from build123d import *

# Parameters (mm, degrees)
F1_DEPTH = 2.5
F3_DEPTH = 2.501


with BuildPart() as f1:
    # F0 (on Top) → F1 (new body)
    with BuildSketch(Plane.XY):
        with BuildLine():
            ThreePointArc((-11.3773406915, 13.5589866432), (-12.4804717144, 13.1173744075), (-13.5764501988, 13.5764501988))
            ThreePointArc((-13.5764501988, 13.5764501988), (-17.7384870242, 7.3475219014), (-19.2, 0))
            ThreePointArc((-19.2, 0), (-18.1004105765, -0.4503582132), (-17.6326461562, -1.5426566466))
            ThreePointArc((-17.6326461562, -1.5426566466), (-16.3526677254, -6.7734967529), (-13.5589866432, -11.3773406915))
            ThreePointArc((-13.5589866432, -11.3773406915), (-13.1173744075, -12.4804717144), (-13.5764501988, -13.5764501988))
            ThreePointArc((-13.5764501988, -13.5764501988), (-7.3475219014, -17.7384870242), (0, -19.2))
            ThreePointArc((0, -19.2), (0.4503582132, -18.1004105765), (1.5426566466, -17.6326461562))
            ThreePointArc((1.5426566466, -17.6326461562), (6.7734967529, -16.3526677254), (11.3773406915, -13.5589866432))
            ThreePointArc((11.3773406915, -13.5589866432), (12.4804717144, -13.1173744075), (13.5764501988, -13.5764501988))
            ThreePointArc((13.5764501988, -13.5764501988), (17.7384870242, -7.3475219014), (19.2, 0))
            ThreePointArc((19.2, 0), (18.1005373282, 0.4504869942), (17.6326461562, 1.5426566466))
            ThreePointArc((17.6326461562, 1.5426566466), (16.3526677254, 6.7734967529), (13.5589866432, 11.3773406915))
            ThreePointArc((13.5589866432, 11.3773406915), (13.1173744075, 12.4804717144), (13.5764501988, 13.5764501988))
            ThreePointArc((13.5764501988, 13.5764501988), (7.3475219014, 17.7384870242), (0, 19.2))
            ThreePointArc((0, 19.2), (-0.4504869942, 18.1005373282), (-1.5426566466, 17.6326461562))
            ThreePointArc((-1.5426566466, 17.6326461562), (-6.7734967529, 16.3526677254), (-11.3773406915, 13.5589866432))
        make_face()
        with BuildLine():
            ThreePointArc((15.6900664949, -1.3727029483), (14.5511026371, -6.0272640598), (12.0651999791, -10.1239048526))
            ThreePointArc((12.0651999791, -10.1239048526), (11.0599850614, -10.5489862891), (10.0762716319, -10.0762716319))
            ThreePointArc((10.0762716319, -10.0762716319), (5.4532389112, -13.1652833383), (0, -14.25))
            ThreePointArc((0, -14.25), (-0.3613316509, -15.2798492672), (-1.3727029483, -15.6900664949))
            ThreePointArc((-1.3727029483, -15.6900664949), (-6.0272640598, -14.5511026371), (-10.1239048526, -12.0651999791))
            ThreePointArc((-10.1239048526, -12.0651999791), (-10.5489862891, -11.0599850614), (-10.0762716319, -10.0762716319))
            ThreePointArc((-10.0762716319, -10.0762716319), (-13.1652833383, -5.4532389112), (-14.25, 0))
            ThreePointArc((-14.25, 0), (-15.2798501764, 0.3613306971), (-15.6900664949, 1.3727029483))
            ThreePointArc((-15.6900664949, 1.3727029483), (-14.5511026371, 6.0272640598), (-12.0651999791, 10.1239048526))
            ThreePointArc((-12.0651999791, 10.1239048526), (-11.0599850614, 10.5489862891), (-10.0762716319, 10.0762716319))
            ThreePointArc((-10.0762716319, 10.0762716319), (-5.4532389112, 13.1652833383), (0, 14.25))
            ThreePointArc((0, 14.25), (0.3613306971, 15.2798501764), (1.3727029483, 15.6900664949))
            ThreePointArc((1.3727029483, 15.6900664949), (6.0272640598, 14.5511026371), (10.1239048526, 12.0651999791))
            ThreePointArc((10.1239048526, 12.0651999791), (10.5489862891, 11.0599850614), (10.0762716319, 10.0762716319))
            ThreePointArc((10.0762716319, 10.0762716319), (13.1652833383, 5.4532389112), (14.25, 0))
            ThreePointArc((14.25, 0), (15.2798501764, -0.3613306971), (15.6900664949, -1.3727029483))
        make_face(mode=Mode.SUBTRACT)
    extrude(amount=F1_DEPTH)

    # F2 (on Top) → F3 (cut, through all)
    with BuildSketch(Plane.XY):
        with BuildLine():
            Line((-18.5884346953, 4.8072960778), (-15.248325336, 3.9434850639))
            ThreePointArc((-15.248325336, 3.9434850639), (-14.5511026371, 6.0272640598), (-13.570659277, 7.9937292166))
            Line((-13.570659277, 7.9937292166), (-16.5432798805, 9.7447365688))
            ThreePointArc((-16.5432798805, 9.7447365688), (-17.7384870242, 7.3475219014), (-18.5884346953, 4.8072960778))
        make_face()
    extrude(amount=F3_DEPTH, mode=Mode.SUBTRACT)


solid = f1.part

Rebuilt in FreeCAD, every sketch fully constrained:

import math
import FreeCAD as App
import Part
import Sketcher
from FreeCAD import Vector
Q = App.Units.Quantity

doc = App.newDocument("Part")
params = doc.addObject("Spreadsheet::Sheet", "Params")
for row, (alias, value) in enumerate([
    ("sketch1_radius", "19.2 mm"),
    ("sketch1_radius2", "17.7 mm"),
    ("sketch1_radius3", "15.75 mm"),
    ("sketch1_radius4", "14.25 mm"),
    ("pad1_length", "2.5 mm"),
    ("sketch2_radius", "19.2 mm"),
    ("sketch2_radius2", "15.75 mm"),
], start=1):
    params.set(f"A{row}", alias)
    params.set(f"B{row}", "=" + value)
    params.setAlias(f"B{row}", alias)

body = doc.addObject("PartDesign::Body", "Body")

# Sketch on XY plane
sketch1 = body.newObject("Sketcher::SketchObject", "Sketch")
sketch1.AttachmentSupport = (doc.getObject("XY_Plane"), [""])
sketch1.MapMode = "FlatFace"
sketch1.addGeometry([
    Part.ArcOfCircle(Part.Circle(Vector(-12.5, 14.7, 0), Vector(0, 0, 1), 1.6), math.radians(-135), math.radians(-46)),  # 0
    Part.ArcOfCircle(Part.Circle(Vector(0, 0, 0), Vector(0, 0, 1), 19.2), math.radians(135), math.radians(180)),  # 1
    Part.ArcOfCircle(Part.Circle(Vector(-19.2, -1.6, 0), Vector(0, 0, 1), 1.6), math.radians(1), math.radians(90)),  # 2
    Part.ArcOfCircle(Part.Circle(Vector(0, 0, 0), Vector(0, 0, 1), 17.7), math.radians(-175), math.radians(-140)),  # 3
    Part.ArcOfCircle(Part.Circle(Vector(-14.7, -12.5, 0), Vector(0, 0, 1), 1.6), math.radians(-45), math.radians(44)),  # 4
    Part.ArcOfCircle(Part.Circle(Vector(0, 0, 0), Vector(0, 0, 1), 19.2), math.radians(-135), math.radians(-90)),  # 5
    Part.ArcOfCircle(Part.Circle(Vector(1.6, -19.2, 0), Vector(0, 0, 1), 1.6), math.radians(91), math.radians(180)),  # 6
    Part.ArcOfCircle(Part.Circle(Vector(0, 0, 0), Vector(0, 0, 1), 17.7), math.radians(-85), math.radians(-50)),  # 7
    Part.ArcOfCircle(Part.Circle(Vector(12.5, -14.7, 0), Vector(0, 0, 1), 1.6), math.radians(45), math.radians(134)),  # 8
    Part.ArcOfCircle(Part.Circle(Vector(0, 0, 0), Vector(0, 0, 1), 19.2), math.radians(-45), math.radians(0)),  # 9
    Part.ArcOfCircle(Part.Circle(Vector(19.2, 1.6, 0), Vector(0, 0, 1), 1.6), math.radians(-179), math.radians(-90)),  # 10
    Part.ArcOfCircle(Part.Circle(Vector(0, 0, 0), Vector(0, 0, 1), 17.7), math.radians(5), math.radians(40)),  # 11
    Part.ArcOfCircle(Part.Circle(Vector(14.7, 12.5, 0), Vector(0, 0, 1), 1.6), math.radians(135), math.radians(224)),  # 12
    Part.ArcOfCircle(Part.Circle(Vector(0, 0, 0), Vector(0, 0, 1), 19.2), math.radians(45), math.radians(90)),  # 13
    Part.ArcOfCircle(Part.Circle(Vector(-1.6, 19.2, 0), Vector(0, 0, 1), 1.6), math.radians(-89), math.radians(0)),  # 14
    Part.ArcOfCircle(Part.Circle(Vector(0, 0, 0), Vector(0, 0, 1), 17.7), math.radians(95), math.radians(130)),  # 15
    Part.ArcOfCircle(Part.Circle(Vector(14.4, -1.3, 0), Vector(0, 0, 1), 1.3), math.radians(-2), math.radians(95)),  # 16
    Part.ArcOfCircle(Part.Circle(Vector(0, 0, 0), Vector(0, 0, 1), 15.7), math.radians(-40), math.radians(-5)),  # 17
    Part.ArcOfCircle(Part.Circle(Vector(11.1, -9.2, 0), Vector(0, 0, 1), 1.3), math.radians(-140), math.radians(-43)),  # 18
    Part.ArcOfCircle(Part.Circle(Vector(0, 0, 0), Vector(0, 0, 1), 14.2), math.radians(-90), math.radians(-45)),  # 19
    Part.ArcOfCircle(Part.Circle(Vector(-1.3, -14.4, 0), Vector(0, 0, 1), 1.3), math.radians(-92), math.radians(5)),  # 20
    Part.ArcOfCircle(Part.Circle(Vector(0, 0, 0), Vector(0, 0, 1), 15.7), math.radians(-130), math.radians(-95)),  # 21
    Part.ArcOfCircle(Part.Circle(Vector(-9.2, -11.1, 0), Vector(0, 0, 1), 1.3), math.radians(130), math.radians(227)),  # 22
    Part.ArcOfCircle(Part.Circle(Vector(0, 0, 0), Vector(0, 0, 1), 14.2), math.radians(180), math.radians(225)),  # 23
    Part.ArcOfCircle(Part.Circle(Vector(-14.4, 1.3, 0), Vector(0, 0, 1), 1.3), math.radians(178), math.radians(275)),  # 24
    Part.ArcOfCircle(Part.Circle(Vector(0, 0, 0), Vector(0, 0, 1), 15.7), math.radians(140), math.radians(175)),  # 25
    Part.ArcOfCircle(Part.Circle(Vector(-11.1, 9.2, 0), Vector(0, 0, 1), 1.3), math.radians(40), math.radians(137)),  # 26
    Part.ArcOfCircle(Part.Circle(Vector(0, 0, 0), Vector(0, 0, 1), 14.2), math.radians(90), math.radians(135)),  # 27
    Part.ArcOfCircle(Part.Circle(Vector(1.3, 14.4, 0), Vector(0, 0, 1), 1.3), math.radians(88), math.radians(185)),  # 28
    Part.ArcOfCircle(Part.Circle(Vector(0, 0, 0), Vector(0, 0, 1), 15.7), math.radians(50), math.radians(85)),  # 29
    Part.ArcOfCircle(Part.Circle(Vector(9.2, 11.1, 0), Vector(0, 0, 1), 1.3), math.radians(-50), math.radians(47)),  # 30
    Part.ArcOfCircle(Part.Circle(Vector(0, 0, 0), Vector(0, 0, 1), 14.2), math.radians(0), math.radians(45)),  # 31
], False)
sketch1.addConstraint([
    Sketcher.Constraint("Coincident", 0, 1, 1, 1),
    Sketcher.Constraint("Coincident", 1, 2, 2, 2),
    Sketcher.Constraint("Coincident", 2, 1, 3, 1),
    Sketcher.Constraint("Coincident", 3, 2, 4, 2),
    Sketcher.Constraint("Coincident", 4, 1, 5, 1),
    Sketcher.Constraint("Coincident", 5, 2, 6, 2),
    Sketcher.Constraint("Coincident", 6, 1, 7, 1),
    Sketcher.Constraint("Coincident", 7, 2, 8, 2),
    Sketcher.Constraint("Coincident", 8, 1, 9, 1),
    Sketcher.Constraint("Coincident", 9, 2, 10, 2),
    Sketcher.Constraint("Coincident", 10, 1, 11, 1),
    Sketcher.Constraint("Coincident", 11, 2, 12, 2),
    Sketcher.Constraint("Coincident", 12, 1, 13, 1),
    Sketcher.Constraint("Coincident", 13, 2, 14, 2),
    Sketcher.Constraint("Coincident", 14, 1, 15, 1),
    Sketcher.Constraint("Coincident", 15, 2, 0, 2),
    Sketcher.Constraint("Coincident", 16, 1, 17, 2),
    Sketcher.Constraint("Coincident", 17, 1, 18, 2),
    Sketcher.Constraint("Coincident", 18, 1, 19, 2),
    Sketcher.Constraint("Coincident", 19, 1, 20, 2),
    Sketcher.Constraint("Coincident", 20, 1, 21, 2),
    Sketcher.Constraint("Coincident", 21, 1, 22, 2),
    Sketcher.Constraint("Coincident", 22, 1, 23, 2),
    Sketcher.Constraint("Coincident", 23, 1, 24, 2),
    Sketcher.Constraint("Coincident", 24, 1, 25, 2),
    Sketcher.Constraint("Coincident", 25, 1, 26, 2),
    Sketcher.Constraint("Coincident", 26, 1, 27, 2),
    Sketcher.Constraint("Coincident", 27, 1, 28, 2),
    Sketcher.Constraint("Coincident", 28, 1, 29, 2),
    Sketcher.Constraint("Coincident", 29, 1, 30, 2),
    Sketcher.Constraint("Coincident", 30, 1, 31, 2),
    Sketcher.Constraint("Coincident", 31, 1, 16, 2),
    Sketcher.Constraint("Coincident", 1, 3, -1, 1),
    Sketcher.Constraint("Coincident", 3, 3, -1, 1),
    Sketcher.Constraint("Coincident", 5, 3, -1, 1),
    Sketcher.Constraint("Coincident", 7, 3, -1, 1),
    Sketcher.Constraint("Coincident", 9, 3, -1, 1),
    Sketcher.Constraint("Coincident", 11, 3, -1, 1),
    Sketcher.Constraint("Coincident", 13, 3, -1, 1),
    Sketcher.Constraint("Coincident", 15, 3, -1, 1),
    Sketcher.Constraint("Coincident", 17, 3, -1, 1),
    Sketcher.Constraint("Coincident", 19, 3, -1, 1),
    Sketcher.Constraint("Coincident", 21, 3, -1, 1),
    Sketcher.Constraint("Coincident", 23, 3, -1, 1),
    Sketcher.Constraint("Coincident", 25, 3, -1, 1),
    Sketcher.Constraint("Coincident", 27, 3, -1, 1),
    Sketcher.Constraint("Coincident", 29, 3, -1, 1),
    Sketcher.Constraint("Coincident", 31, 3, -1, 1),
    Sketcher.Constraint("Equal", 0, 2),
    Sketcher.Constraint("Equal", 2, 4),
    Sketcher.Constraint("Equal", 1, 5),
    Sketcher.Constraint("Equal", 4, 6),
    Sketcher.Constraint("Equal", 3, 7),
    Sketcher.Constraint("Equal", 6, 8),
    Sketcher.Constraint("Equal", 5, 9),
    Sketcher.Constraint("Equal", 7, 11),
    Sketcher.Constraint("Equal", 8, 12),
    Sketcher.Constraint("Equal", 9, 13),
    Sketcher.Constraint("Equal", 10, 14),
    Sketcher.Constraint("Equal", 11, 15),
    Sketcher.Constraint("Equal", 16, 18),
    Sketcher.Constraint("Equal", 17, 21),
    Sketcher.Constraint("Equal", 18, 22),
    Sketcher.Constraint("Equal", 19, 23),
    Sketcher.Constraint("Equal", 22, 24),
    Sketcher.Constraint("Equal", 21, 25),
    Sketcher.Constraint("Equal", 24, 26),
    Sketcher.Constraint("Equal", 23, 27),
    Sketcher.Constraint("Equal", 26, 28),
    Sketcher.Constraint("Equal", 25, 29),
    Sketcher.Constraint("Equal", 28, 30),
    Sketcher.Constraint("Equal", 27, 31),
    Sketcher.Constraint("Symmetric", 0, 3, 8, 3, -1, 1),
    Sketcher.Constraint("Symmetric", 4, 3, 12, 3, -1, 1),
    Sketcher.Constraint("Symmetric", 16, 3, 24, 3, -1, 1),
    Sketcher.Constraint("Symmetric", 18, 3, 26, 3, -1, 1),
    Sketcher.Constraint("Symmetric", 20, 3, 28, 3, -1, 1),
    Sketcher.Constraint("Symmetric", 22, 3, 30, 3, -1, 1),
    Sketcher.Constraint("PointOnObject", 1, 2, -1),
    Sketcher.Constraint("PointOnObject", 5, 2, -2),
    Sketcher.Constraint("PointOnObject", 9, 2, -1),
    Sketcher.Constraint("PointOnObject", 13, 2, -2),
    Sketcher.Constraint("PointOnObject", 19, 1, -2),
    Sketcher.Constraint("PointOnObject", 23, 1, -1),
    Sketcher.Constraint("PointOnObject", 27, 1, -2),
    Sketcher.Constraint("Horizontal", 6, 3, 5, 2),
    Sketcher.Constraint("Horizontal", 4, 1, 8, 1),
    Sketcher.Constraint("Horizontal", 18, 1, 22, 1),
    Sketcher.Constraint("Vertical", 2, 3, 1, 2),
    Sketcher.Constraint("Radius", 1, 19.2),
    Sketcher.Constraint("Radius", 3, 17.7),
    Sketcher.Constraint("Radius", 17, 15.75),
    Sketcher.Constraint("Radius", 19, 14.25),
    Sketcher.Constraint("Radius", 10, 1.568),
    Sketcher.Constraint("Radius", 0, 1.567552),
    Sketcher.Constraint("Radius", 16, 1.32637),
    Sketcher.Constraint("DistanceX", -1, 1, 17, 1, 12.0652),
    Sketcher.Constraint("DistanceY", 21, 1, -1, 1, 12.0652),
    Sketcher.Constraint("DistanceX", -1, 1, 10, 3, 19.200441),
    Sketcher.Constraint("DistanceY", -1, 1, 14, 3, 19.200441),
    Sketcher.Constraint("DistanceX", -1, 1, 16, 3, 14.364689),
    Sketcher.Constraint("DistanceX", -1, 1, 18, 3, 11.091741),
    Sketcher.Constraint("DistanceY", -1, 1, 28, 3, 14.364689),
    Sketcher.Constraint("DistanceX", 0, 1, -1, 1, 13.57645),
    Sketcher.Constraint("DistanceY", 3, 2, -1, 1, 11.377341),
    Sketcher.Constraint("DistanceX", -1, 1, 7, 2, 11.377341),
])
sketch1.setExpression("Constraints[89]", "Params.sketch1_radius")
sketch1.setExpression("Constraints[90]", "Params.sketch1_radius2")
sketch1.setExpression("Constraints[91]", "Params.sketch1_radius3")
sketch1.setExpression("Constraints[92]", "Params.sketch1_radius4")
pad1 = body.newObject("PartDesign::Pad", "Pad")
pad1.Profile = sketch1
pad1.setExpression("Length", "Params.pad1_length")

# Sketch on XY plane
sketch2 = body.newObject("Sketcher::SketchObject", "Sketch001")
sketch2.AttachmentSupport = (doc.getObject("XY_Plane"), [""])
sketch2.MapMode = "FlatFace"
sketch2.addGeometry([
    Part.LineSegment(Vector(-18.6, 4.8, 0), Vector(-15.2, 3.9, 0)),
    Part.ArcOfCircle(Part.Circle(Vector(0, 0, 0), Vector(0, 0, 1), 15.7), math.radians(149.5), math.radians(165.5)),
    Part.LineSegment(Vector(-13.6, 8, 0), Vector(-16.5, 9.7, 0)),
    Part.ArcOfCircle(Part.Circle(Vector(0, 0, 0), Vector(0, 0, 1), 19.2), math.radians(149.5), math.radians(165.5)),
], False)
sketch2.addConstraint([
    Sketcher.Constraint("Coincident", 0, 2, 1, 2),
    Sketcher.Constraint("Coincident", 1, 1, 2, 1),
    Sketcher.Constraint("Coincident", 2, 2, 3, 1),
    Sketcher.Constraint("Coincident", 3, 2, 0, 1),
    Sketcher.Constraint("Coincident", 1, 3, -1, 1),
    Sketcher.Constraint("Coincident", 3, 3, -1, 1),
    Sketcher.Constraint("Radius", 3, 19.2),
    Sketcher.Constraint("Radius", 1, 15.75),
    Sketcher.Constraint("Angle", 0, Q("-14.5 deg")),
    Sketcher.Constraint("Angle", 2, Q("149.5 deg")),
    Sketcher.Constraint("DistanceX", 1, 1, -1, 1, 13.570659),
    Sketcher.Constraint("DistanceY", 0, 2, 2, 2, 5.801252),
])
sketch2.setExpression("Constraints[6]", "Params.sketch2_radius")
sketch2.setExpression("Constraints[7]", "Params.sketch2_radius2")
pocket1 = body.newObject("PartDesign::Pocket", "Pocket")
pocket1.Profile = sketch2
pocket1.Type = "ThroughAll"
pocket1.Reversed = True

doc.recompute()
